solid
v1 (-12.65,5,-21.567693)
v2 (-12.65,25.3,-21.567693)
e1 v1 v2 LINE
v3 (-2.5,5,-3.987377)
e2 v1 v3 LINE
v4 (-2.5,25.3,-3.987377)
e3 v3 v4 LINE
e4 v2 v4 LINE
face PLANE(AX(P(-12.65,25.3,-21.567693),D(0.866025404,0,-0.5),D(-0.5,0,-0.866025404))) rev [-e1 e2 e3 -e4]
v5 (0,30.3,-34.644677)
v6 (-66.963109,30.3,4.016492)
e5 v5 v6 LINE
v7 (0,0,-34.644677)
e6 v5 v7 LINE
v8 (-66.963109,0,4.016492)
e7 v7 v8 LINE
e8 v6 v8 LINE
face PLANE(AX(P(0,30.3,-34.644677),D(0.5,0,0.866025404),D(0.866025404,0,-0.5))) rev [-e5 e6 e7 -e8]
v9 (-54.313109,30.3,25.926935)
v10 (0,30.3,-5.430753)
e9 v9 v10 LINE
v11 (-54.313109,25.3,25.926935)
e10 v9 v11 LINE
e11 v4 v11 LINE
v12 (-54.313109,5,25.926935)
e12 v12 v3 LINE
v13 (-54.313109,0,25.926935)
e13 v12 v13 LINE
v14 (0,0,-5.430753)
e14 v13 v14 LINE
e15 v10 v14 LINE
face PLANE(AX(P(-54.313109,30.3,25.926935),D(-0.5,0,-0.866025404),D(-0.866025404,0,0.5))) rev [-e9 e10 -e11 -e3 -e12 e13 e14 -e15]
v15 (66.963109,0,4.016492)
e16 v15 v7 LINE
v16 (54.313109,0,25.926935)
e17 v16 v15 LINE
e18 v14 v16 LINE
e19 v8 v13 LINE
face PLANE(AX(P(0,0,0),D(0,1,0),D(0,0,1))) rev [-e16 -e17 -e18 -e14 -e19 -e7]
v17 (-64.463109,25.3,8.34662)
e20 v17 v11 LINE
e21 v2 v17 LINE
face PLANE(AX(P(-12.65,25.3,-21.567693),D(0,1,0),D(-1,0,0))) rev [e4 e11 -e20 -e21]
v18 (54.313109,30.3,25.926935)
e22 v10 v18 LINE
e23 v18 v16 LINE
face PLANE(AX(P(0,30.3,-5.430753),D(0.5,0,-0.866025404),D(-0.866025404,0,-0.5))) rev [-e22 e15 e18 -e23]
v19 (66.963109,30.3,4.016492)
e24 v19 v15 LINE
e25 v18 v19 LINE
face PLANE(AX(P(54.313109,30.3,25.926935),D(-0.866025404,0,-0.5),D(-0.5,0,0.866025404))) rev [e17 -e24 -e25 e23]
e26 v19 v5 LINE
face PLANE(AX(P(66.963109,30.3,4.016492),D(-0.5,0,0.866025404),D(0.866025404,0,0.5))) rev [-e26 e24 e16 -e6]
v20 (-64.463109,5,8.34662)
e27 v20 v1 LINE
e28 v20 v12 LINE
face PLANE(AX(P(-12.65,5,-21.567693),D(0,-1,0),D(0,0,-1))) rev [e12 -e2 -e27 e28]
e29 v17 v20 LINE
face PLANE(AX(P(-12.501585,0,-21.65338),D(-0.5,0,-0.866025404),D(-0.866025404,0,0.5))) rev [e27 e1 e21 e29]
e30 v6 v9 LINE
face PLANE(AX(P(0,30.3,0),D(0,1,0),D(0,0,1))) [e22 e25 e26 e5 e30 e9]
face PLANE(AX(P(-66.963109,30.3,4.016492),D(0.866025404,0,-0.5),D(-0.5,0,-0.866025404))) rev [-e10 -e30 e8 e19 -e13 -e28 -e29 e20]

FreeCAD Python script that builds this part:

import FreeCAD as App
import Part
import Sketcher
from FreeCAD import Vector
Q = App.Units.Quantity

doc = App.newDocument("Part")
params = doc.addObject("Spreadsheet::Sheet", "Params")
for row, (alias, value) in enumerate([
    ("sketch1_length", "25.3 mm"),
    ("pad1_length", "30.3 mm"),
    ("sketch2_height", "20.3 mm"),
    ("pocket1_length", "20.3 mm"),
], start=1):
    params.set(f"A{row}", alias)
    params.set(f"B{row}", "=" + value)
    params.setAlias(f"B{row}", alias)

body = doc.addObject("PartDesign::Body", "Body")

# Sketch on XZ plane
sketch1 = body.newObject("Sketcher::SketchObject", "Sketch")
sketch1.AttachmentSupport = (doc.getObject("XZ_Plane"), [""])
sketch1.MapMode = "FlatFace"
sketch1.addGeometry([
    Part.LineSegment(Vector(-67, 4, 0), Vector(-54, 26, 0)),  # 0
    Part.LineSegment(Vector(-54, 26, 0), Vector(0, -5, 0)),  # 1
    Part.LineSegment(Vector(0, -5, 0), Vector(54, 26, 0)),  # 2
    Part.LineSegment(Vector(54, 26, 0), Vector(67, 4, 0)),  # 3
    Part.LineSegment(Vector(67, 4, 0), Vector(0, -35, 0)),  # 4
    Part.LineSegment(Vector(0, -35, 0), Vector(-67, 4, 0)),  # 5
], False)
sketch1.addConstraint([
    Sketcher.Constraint("Coincident", 0, 2, 1, 1),
    Sketcher.Constraint("Coincident", 1, 2, 2, 1),
    Sketcher.Constraint("Coincident", 2, 2, 3, 1),
    Sketcher.Constraint("Coincident", 3, 2, 4, 1),
    Sketcher.Constraint("Coincident", 4, 2, 5, 1),
    Sketcher.Constraint("Coincident", 5, 2, 0, 1),
    Sketcher.Constraint("Symmetric", 0, 2, 2, 2, -2),
    Sketcher.Constraint("Symmetric", 3, 2, 5, 2, -2),
    Sketcher.Constraint("PointOnObject", 1, 2, -2),
    Sketcher.Constraint("PointOnObject", 4, 2, -2),
    Sketcher.Constraint("Perpendicular", 0, 1),
    Sketcher.Constraint("Perpendicular", 3, 4),
    Sketcher.Constraint("Angle", 0, Q("60 deg")),
    Sketcher.Constraint("Distance", 0, Q("25.3 mm")),
    Sketcher.Constraint("Distance", 4, Q("77.322338 mm")),
    Sketcher.Constraint("DistanceY", -1, 1, 0, 2, Q("25.926935 mm")),
])
sketch1.setExpression("Constraints[13]", "Params.sketch1_length")
pad1 = body.newObject("PartDesign::Pad", "Pad")
pad1.Profile = sketch1
pad1.setExpression("Length", "Params.pad1_length")
pad1.Reversed = True

# Sketch on an angled plane
sketch2 = body.newObject("Sketcher::SketchObject", "Sketch001")
sketch2.Placement = App.Placement(Vector(-2.351585, 0, -4.073065), App.Rotation(Vector(0.866025404, 0, -0.5), Vector(0, 1, 0), Vector(0.5, 0, 0.866025404), "ZXY"))
sketch2.addGeometry([
    Part.LineSegment(Vector(-60, 25, 0), Vector(-60, 5, 0)),
    Part.LineSegment(Vector(-60, 5, 0), Vector(0, 5, 0)),
    Part.LineSegment(Vector(0, 5, 0), Vector(0, 25, 0)),
    Part.LineSegment(Vector(0, 25, 0), Vector(-60, 25, 0)),
], False)
sketch2.addConstraint([
    Sketcher.Constraint("Coincident", 0, 2, 1, 1),
    Sketcher.Constraint("Coincident", 1, 2, 2, 1),
    Sketcher.Constraint("Coincident", 2, 2, 3, 1),
    Sketcher.Constraint("Coincident", 3, 2, 0, 1),
    Sketcher.Constraint("Vertical", 0),
    Sketcher.Constraint("Horizontal", 1),
    Sketcher.Constraint("Vertical", 2),
    Sketcher.Constraint("Horizontal", 3),
    Sketcher.Constraint("DistanceY", 0, 2, 0, 1, Q("20.3 mm")),
    Sketcher.Constraint("DistanceX", 0, 2, -1, 1, Q("60 mm")),
    Sketcher.Constraint("DistanceY", -1, 1, 0, 2, Q("5 mm")),
    Sketcher.Constraint("DistanceX", 1, 1, 1, 2, Q("59.828625 mm")),
])
sketch2.setExpression("Constraints[8]", "Params.sketch2_height")
pocket1 = body.newObject("PartDesign::Pocket", "Pocket")
pocket1.Profile = sketch2
pocket1.setExpression("Length", "Params.pocket1_length")

doc.recompute()
